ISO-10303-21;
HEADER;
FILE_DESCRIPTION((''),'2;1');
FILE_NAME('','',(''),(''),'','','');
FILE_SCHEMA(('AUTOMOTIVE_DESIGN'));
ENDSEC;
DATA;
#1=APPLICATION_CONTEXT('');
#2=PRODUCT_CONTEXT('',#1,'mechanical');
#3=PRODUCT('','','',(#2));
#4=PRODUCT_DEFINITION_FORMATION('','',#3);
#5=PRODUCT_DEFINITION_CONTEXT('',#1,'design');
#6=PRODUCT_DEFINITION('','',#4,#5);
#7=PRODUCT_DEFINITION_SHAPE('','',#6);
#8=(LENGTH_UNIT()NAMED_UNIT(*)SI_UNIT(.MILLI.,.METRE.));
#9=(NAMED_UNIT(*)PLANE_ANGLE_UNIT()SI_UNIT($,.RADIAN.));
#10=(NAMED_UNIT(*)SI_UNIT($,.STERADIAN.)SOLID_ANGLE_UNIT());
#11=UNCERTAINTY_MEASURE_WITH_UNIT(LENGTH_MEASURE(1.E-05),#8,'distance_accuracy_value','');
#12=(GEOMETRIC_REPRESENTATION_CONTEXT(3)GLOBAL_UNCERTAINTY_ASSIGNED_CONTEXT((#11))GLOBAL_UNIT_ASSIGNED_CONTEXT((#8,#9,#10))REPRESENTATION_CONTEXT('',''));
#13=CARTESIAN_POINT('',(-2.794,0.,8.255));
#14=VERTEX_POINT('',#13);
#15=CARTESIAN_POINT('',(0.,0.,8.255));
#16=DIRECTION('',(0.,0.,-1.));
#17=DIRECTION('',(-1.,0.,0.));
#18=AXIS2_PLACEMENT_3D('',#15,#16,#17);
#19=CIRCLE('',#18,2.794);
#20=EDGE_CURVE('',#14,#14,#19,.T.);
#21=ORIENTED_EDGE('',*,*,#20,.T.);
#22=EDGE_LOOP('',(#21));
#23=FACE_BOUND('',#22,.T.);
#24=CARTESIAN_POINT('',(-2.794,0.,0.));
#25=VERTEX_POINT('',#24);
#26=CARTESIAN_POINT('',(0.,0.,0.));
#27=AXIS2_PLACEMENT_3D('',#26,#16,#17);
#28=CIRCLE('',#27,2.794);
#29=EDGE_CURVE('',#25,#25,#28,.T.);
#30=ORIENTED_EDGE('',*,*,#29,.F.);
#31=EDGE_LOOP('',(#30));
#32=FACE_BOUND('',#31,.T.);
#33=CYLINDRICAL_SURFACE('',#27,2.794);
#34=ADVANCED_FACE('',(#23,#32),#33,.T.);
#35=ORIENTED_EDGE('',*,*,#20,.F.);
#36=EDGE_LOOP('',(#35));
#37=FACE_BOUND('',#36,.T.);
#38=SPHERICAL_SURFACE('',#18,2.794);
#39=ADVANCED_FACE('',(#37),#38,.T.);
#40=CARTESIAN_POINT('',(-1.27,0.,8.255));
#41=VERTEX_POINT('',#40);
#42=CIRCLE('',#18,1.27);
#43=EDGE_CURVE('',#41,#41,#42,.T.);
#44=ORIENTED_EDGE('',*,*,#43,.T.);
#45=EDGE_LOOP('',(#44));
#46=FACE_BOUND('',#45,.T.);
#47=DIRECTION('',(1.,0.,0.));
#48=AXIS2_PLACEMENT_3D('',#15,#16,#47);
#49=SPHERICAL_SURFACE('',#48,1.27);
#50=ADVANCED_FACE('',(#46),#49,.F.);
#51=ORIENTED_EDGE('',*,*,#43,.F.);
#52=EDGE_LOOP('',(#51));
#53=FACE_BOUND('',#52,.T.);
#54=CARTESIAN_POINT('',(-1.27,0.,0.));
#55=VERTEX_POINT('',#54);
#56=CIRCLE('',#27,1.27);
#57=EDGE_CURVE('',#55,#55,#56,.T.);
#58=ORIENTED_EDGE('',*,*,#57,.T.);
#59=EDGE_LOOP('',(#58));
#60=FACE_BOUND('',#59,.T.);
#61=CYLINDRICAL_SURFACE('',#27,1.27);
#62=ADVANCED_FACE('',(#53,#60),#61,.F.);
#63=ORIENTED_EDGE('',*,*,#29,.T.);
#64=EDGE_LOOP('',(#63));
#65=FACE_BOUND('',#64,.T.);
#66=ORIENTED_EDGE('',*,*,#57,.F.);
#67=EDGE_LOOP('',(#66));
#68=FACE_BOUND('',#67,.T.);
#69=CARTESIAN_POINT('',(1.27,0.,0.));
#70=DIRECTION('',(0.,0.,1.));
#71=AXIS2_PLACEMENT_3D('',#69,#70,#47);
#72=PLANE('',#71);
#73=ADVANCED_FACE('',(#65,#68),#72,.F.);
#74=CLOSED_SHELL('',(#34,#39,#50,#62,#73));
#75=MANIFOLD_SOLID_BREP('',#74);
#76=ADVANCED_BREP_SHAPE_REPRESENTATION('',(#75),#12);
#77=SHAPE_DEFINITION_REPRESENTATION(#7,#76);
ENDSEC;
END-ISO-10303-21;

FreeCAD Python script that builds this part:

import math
import FreeCAD as App
import Part
import Sketcher
from FreeCAD import Vector
Q = App.Units.Quantity

doc = App.newDocument("Part")
body = doc.addObject("PartDesign::Body", "Body")

sketch1 = body.newObject("Sketcher::SketchObject", "Sketch")
sketch1.AttachmentSupport = (doc.getObject("XZ_Plane"), [""])
sketch1.MapMode = "FlatFace"
sketch1.addGeometry(Part.LineSegment(Vector(1.3, 0, 0), Vector(1.3, 8.3, 0)), False)
sketch1.addGeometry(Part.ArcOfCircle(Part.Circle(Vector(0, 8.3, 0), Vector(0, 0, 1), 1.3), math.radians(0), math.radians(90)), False)
sketch1.addGeometry(Part.LineSegment(Vector(0, 9.5, 0), Vector(0, 11, 0)), False)
sketch1.addGeometry(Part.ArcOfCircle(Part.Circle(Vector(0, 8.3, 0), Vector(0, 0, 1), 2.8), math.radians(0), math.radians(90)), False)
sketch1.addGeometry(Part.LineSegment(Vector(2.8, 8.3, 0), Vector(2.8, 0, 0)), False)
sketch1.addGeometry(Part.LineSegment(Vector(2.8, 0, 0), Vector(1.3, 0, 0)), False)
sketch1.addConstraint(Sketcher.Constraint("Tangent", 0, 2, 1, 1))
sketch1.addConstraint(Sketcher.Constraint("Coincident", 1, 2, 2, 1))
sketch1.addConstraint(Sketcher.Constraint("Coincident", 2, 2, 3, 2))
sketch1.addConstraint(Sketcher.Constraint("Tangent", 3, 1, 4, 1))
sketch1.addConstraint(Sketcher.Constraint("Coincident", 4, 2, 5, 1))
sketch1.addConstraint(Sketcher.Constraint("Coincident", 5, 2, 0, 1))
sketch1.addConstraint(Sketcher.Constraint("Vertical", 0))
sketch1.addConstraint(Sketcher.Constraint("Vertical", 2))
sketch1.addConstraint(Sketcher.Constraint("Vertical", 4))
sketch1.addConstraint(Sketcher.Constraint("Horizontal", 5))
sketch1.addConstraint(Sketcher.Constraint("Coincident", 3, 3, 1, 3))
sketch1.addConstraint(Sketcher.Constraint("PointOnObject", 1, 3, -2))
sketch1.addConstraint(Sketcher.Constraint("PointOnObject", 1, 2, -2))
sketch1.addConstraint(Sketcher.Constraint("PointOnObject", 4, 2, -1))
sketch1.addConstraint(Sketcher.Constraint("Radius", 1, Q("0.05 in")))
sketch1.addConstraint(Sketcher.Constraint("Radius", 3, Q("0.11 in")))
sketch1.addConstraint(Sketcher.Constraint("DistanceY", 0, 1, 0, 2, Q("0.325 in")))
revolution = body.newObject("PartDesign::Revolution", "Revolution")
revolution.Profile = sketch1
revolution.ReferenceAxis = (sketch1, ["V_Axis"])
revolution.Angle = 360

doc.recompute()
